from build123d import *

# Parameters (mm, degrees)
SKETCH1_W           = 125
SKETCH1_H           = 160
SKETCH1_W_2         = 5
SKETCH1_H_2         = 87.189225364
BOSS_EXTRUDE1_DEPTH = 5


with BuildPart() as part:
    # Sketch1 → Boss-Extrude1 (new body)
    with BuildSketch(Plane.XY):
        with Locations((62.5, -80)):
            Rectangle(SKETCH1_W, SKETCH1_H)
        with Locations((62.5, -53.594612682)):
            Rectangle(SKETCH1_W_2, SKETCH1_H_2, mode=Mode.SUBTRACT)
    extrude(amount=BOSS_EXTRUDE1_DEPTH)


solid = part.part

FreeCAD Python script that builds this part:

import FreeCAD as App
import Part
import Sketcher
from FreeCAD import Vector
Q = App.Units.Quantity

doc = App.newDocument("Part")
body = doc.addObject("PartDesign::Body", "Body")

# Sketch on XY plane
sketch1 = doc.addObject("Sketcher::SketchObject", "Sketch")
body.addObject(sketch1)
sketch1.AttachmentSupport = (doc.XY_Plane, [""])
sketch1.MapMode = "FlatFace"
sketch1.addGeometry(Part.LineSegment(Vector(0, 0, 0), Vector(0, -160, 0)), False)
sketch1.addGeometry(Part.LineSegment(Vector(0, -160, 0), Vector(125, -160, 0)), False)
sketch1.addGeometry(Part.LineSegment(Vector(125, -160, 0), Vector(125, 0, 0)), False)
sketch1.addGeometry(Part.LineSegment(Vector(125, 0, 0), Vector(0, 0, 0)), False)
sketch1.addGeometry(Part.LineSegment(Vector(65, -97, 0), Vector(60, -97, 0)), False)
sketch1.addGeometry(Part.LineSegment(Vector(60, -97, 0), Vector(60, -10, 0)), False)
sketch1.addGeometry(Part.LineSegment(Vector(60, -10, 0), Vector(65, -10, 0)), False)
sketch1.addGeometry(Part.LineSegment(Vector(65, -10, 0), Vector(65, -97, 0)), False)
sketch1.addConstraint(Sketcher.Constraint("Coincident", 0, 2, 1, 1))
sketch1.addConstraint(Sketcher.Constraint("Coincident", 1, 2, 2, 1))
sketch1.addConstraint(Sketcher.Constraint("Coincident", 2, 2, 3, 1))
sketch1.addConstraint(Sketcher.Constraint("Coincident", 3, 2, 0, 1))
sketch1.addConstraint(Sketcher.Constraint("Coincident", 4, 2, 5, 1))
sketch1.addConstraint(Sketcher.Constraint("Coincident", 5, 2, 6, 1))
sketch1.addConstraint(Sketcher.Constraint("Coincident", 6, 2, 7, 1))
sketch1.addConstraint(Sketcher.Constraint("Coincident", 7, 2, 4, 1))
sketch1.addConstraint(Sketcher.Constraint("Vertical", 0))
sketch1.addConstraint(Sketcher.Constraint("Horizontal", 1))
sketch1.addConstraint(Sketcher.Constraint("Vertical", 2))
sketch1.addConstraint(Sketcher.Constraint("Horizontal", 3))
sketch1.addConstraint(Sketcher.Constraint("Horizontal", 4))
sketch1.addConstraint(Sketcher.Constraint("Vertical", 5))
sketch1.addConstraint(Sketcher.Constraint("Horizontal", 6))
sketch1.addConstraint(Sketcher.Constraint("Vertical", 7))
sketch1.addConstraint(Sketcher.Constraint("Coincident", 3, 2, -1, 1))
sketch1.addConstraint(Sketcher.Constraint("DistanceX", 1, 1, 1, 2, Q("125 mm")))
sketch1.addConstraint(Sketcher.Constraint("DistanceX", 4, 2, 4, 1, Q("5 mm")))
sketch1.addConstraint(Sketcher.Constraint("DistanceY", 0, 2, 0, 1, Q("160 mm")))
sketch1.addConstraint(Sketcher.Constraint("DistanceX", -1, 1, 4, 2, Q("60 mm")))
sketch1.addConstraint(Sketcher.Constraint("DistanceY", 5, 2, -1, 1, Q("10 mm")))
sketch1.addConstraint(Sketcher.Constraint("DistanceY", 5, 1, 5, 2, Q("87.189225 mm")))
pad1 = doc.addObject("PartDesign::Pad", "Pad")
body.addObject(pad1)
pad1.Profile = sketch1
pad1.Length = 5

doc.recompute()
